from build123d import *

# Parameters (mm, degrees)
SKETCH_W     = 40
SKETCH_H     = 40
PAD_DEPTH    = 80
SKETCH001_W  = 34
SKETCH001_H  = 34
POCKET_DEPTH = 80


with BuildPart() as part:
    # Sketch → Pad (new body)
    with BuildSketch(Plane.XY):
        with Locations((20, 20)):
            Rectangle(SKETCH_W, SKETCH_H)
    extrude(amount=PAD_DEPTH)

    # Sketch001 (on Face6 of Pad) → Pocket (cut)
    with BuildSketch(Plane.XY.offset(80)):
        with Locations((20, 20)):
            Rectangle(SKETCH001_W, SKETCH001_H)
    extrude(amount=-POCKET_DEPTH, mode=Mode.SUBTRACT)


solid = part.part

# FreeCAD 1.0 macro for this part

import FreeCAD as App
import Part
import Sketcher

V = App.Vector

doc = App.newDocument("Part")
body = doc.addObject("PartDesign::Body", "Body")

sketch1 = body.newObject("Sketcher::SketchObject", "Sketch")
sketch1.AttachmentSupport = (doc.getObject("XY_Plane"), [""])
sketch1.MapMode = "FlatFace"
sketch1.addGeometry([
    Part.LineSegment(V(0, 40, 0), V(0, 0, 0)),
    Part.LineSegment(V(0, 0, 0), V(40, 0, 0)),
    Part.LineSegment(V(40, 0, 0), V(40, 40, 0)),
    Part.LineSegment(V(40, 40, 0), V(0, 40, 0)),
], False)
sketch1.addConstraint([
    Sketcher.Constraint("Coincident", 0, 2, 1, 1),
    Sketcher.Constraint("Coincident", 1, 2, 2, 1),
    Sketcher.Constraint("Coincident", 2, 2, 3, 1),
    Sketcher.Constraint("Coincident", 3, 2, 0, 1),
    Sketcher.Constraint("Vertical", 0),
    Sketcher.Constraint("Horizontal", 1),
    Sketcher.Constraint("Vertical", 2),
    Sketcher.Constraint("Horizontal", 3),
    Sketcher.Constraint("Coincident", 0, 2, -1, 1),
    Sketcher.Constraint("Equal", 3, 0),
    Sketcher.Constraint("DistanceX", 1, 1, 1, 2, 40.0),
])
pad1 = body.newObject("PartDesign::Pad", "Pad")
pad1.Profile = sketch1
pad1.Length = 80

sketch2 = body.newObject("Sketcher::SketchObject", "Sketch001")
sketch2.AttachmentSupport = (doc.getObject("XY_Plane"), [""])
sketch2.MapMode = "FlatFace"
sketch2.AttachmentOffset = App.Placement(V(0, 0, 80), App.Rotation())
sketch2.addGeometry([
    Part.LineSegment(V(3, 37, 0), V(3, 3, 0)),
    Part.LineSegment(V(3, 3, 0), V(37, 3, 0)),
    Part.LineSegment(V(37, 3, 0), V(37, 37, 0)),
    Part.LineSegment(V(37, 37, 0), V(3, 37, 0)),
], False)
sketch2.addConstraint([
    Sketcher.Constraint("Coincident", 0, 2, 1, 1),
    Sketcher.Constraint("Coincident", 1, 2, 2, 1),
    Sketcher.Constraint("Coincident", 2, 2, 3, 1),
    Sketcher.Constraint("Coincident", 3, 2, 0, 1),
    Sketcher.Constraint("Vertical", 0),
    Sketcher.Constraint("Horizontal", 1),
    Sketcher.Constraint("Vertical", 2),
    Sketcher.Constraint("Horizontal", 3),
    Sketcher.Constraint("Equal", 3, 0),
    Sketcher.Constraint("DistanceX", 1, 1, 1, 2, 34.0),
    Sketcher.Constraint("DistanceX", -1, 1, 0, 2, 3.0),
    Sketcher.Constraint("DistanceY", -1, 1, 0, 2, 3.0),
])
pocket1 = body.newObject("PartDesign::Pocket", "Pocket")
pocket1.Profile = sketch2
pocket1.Length = 80

doc.recompute()
